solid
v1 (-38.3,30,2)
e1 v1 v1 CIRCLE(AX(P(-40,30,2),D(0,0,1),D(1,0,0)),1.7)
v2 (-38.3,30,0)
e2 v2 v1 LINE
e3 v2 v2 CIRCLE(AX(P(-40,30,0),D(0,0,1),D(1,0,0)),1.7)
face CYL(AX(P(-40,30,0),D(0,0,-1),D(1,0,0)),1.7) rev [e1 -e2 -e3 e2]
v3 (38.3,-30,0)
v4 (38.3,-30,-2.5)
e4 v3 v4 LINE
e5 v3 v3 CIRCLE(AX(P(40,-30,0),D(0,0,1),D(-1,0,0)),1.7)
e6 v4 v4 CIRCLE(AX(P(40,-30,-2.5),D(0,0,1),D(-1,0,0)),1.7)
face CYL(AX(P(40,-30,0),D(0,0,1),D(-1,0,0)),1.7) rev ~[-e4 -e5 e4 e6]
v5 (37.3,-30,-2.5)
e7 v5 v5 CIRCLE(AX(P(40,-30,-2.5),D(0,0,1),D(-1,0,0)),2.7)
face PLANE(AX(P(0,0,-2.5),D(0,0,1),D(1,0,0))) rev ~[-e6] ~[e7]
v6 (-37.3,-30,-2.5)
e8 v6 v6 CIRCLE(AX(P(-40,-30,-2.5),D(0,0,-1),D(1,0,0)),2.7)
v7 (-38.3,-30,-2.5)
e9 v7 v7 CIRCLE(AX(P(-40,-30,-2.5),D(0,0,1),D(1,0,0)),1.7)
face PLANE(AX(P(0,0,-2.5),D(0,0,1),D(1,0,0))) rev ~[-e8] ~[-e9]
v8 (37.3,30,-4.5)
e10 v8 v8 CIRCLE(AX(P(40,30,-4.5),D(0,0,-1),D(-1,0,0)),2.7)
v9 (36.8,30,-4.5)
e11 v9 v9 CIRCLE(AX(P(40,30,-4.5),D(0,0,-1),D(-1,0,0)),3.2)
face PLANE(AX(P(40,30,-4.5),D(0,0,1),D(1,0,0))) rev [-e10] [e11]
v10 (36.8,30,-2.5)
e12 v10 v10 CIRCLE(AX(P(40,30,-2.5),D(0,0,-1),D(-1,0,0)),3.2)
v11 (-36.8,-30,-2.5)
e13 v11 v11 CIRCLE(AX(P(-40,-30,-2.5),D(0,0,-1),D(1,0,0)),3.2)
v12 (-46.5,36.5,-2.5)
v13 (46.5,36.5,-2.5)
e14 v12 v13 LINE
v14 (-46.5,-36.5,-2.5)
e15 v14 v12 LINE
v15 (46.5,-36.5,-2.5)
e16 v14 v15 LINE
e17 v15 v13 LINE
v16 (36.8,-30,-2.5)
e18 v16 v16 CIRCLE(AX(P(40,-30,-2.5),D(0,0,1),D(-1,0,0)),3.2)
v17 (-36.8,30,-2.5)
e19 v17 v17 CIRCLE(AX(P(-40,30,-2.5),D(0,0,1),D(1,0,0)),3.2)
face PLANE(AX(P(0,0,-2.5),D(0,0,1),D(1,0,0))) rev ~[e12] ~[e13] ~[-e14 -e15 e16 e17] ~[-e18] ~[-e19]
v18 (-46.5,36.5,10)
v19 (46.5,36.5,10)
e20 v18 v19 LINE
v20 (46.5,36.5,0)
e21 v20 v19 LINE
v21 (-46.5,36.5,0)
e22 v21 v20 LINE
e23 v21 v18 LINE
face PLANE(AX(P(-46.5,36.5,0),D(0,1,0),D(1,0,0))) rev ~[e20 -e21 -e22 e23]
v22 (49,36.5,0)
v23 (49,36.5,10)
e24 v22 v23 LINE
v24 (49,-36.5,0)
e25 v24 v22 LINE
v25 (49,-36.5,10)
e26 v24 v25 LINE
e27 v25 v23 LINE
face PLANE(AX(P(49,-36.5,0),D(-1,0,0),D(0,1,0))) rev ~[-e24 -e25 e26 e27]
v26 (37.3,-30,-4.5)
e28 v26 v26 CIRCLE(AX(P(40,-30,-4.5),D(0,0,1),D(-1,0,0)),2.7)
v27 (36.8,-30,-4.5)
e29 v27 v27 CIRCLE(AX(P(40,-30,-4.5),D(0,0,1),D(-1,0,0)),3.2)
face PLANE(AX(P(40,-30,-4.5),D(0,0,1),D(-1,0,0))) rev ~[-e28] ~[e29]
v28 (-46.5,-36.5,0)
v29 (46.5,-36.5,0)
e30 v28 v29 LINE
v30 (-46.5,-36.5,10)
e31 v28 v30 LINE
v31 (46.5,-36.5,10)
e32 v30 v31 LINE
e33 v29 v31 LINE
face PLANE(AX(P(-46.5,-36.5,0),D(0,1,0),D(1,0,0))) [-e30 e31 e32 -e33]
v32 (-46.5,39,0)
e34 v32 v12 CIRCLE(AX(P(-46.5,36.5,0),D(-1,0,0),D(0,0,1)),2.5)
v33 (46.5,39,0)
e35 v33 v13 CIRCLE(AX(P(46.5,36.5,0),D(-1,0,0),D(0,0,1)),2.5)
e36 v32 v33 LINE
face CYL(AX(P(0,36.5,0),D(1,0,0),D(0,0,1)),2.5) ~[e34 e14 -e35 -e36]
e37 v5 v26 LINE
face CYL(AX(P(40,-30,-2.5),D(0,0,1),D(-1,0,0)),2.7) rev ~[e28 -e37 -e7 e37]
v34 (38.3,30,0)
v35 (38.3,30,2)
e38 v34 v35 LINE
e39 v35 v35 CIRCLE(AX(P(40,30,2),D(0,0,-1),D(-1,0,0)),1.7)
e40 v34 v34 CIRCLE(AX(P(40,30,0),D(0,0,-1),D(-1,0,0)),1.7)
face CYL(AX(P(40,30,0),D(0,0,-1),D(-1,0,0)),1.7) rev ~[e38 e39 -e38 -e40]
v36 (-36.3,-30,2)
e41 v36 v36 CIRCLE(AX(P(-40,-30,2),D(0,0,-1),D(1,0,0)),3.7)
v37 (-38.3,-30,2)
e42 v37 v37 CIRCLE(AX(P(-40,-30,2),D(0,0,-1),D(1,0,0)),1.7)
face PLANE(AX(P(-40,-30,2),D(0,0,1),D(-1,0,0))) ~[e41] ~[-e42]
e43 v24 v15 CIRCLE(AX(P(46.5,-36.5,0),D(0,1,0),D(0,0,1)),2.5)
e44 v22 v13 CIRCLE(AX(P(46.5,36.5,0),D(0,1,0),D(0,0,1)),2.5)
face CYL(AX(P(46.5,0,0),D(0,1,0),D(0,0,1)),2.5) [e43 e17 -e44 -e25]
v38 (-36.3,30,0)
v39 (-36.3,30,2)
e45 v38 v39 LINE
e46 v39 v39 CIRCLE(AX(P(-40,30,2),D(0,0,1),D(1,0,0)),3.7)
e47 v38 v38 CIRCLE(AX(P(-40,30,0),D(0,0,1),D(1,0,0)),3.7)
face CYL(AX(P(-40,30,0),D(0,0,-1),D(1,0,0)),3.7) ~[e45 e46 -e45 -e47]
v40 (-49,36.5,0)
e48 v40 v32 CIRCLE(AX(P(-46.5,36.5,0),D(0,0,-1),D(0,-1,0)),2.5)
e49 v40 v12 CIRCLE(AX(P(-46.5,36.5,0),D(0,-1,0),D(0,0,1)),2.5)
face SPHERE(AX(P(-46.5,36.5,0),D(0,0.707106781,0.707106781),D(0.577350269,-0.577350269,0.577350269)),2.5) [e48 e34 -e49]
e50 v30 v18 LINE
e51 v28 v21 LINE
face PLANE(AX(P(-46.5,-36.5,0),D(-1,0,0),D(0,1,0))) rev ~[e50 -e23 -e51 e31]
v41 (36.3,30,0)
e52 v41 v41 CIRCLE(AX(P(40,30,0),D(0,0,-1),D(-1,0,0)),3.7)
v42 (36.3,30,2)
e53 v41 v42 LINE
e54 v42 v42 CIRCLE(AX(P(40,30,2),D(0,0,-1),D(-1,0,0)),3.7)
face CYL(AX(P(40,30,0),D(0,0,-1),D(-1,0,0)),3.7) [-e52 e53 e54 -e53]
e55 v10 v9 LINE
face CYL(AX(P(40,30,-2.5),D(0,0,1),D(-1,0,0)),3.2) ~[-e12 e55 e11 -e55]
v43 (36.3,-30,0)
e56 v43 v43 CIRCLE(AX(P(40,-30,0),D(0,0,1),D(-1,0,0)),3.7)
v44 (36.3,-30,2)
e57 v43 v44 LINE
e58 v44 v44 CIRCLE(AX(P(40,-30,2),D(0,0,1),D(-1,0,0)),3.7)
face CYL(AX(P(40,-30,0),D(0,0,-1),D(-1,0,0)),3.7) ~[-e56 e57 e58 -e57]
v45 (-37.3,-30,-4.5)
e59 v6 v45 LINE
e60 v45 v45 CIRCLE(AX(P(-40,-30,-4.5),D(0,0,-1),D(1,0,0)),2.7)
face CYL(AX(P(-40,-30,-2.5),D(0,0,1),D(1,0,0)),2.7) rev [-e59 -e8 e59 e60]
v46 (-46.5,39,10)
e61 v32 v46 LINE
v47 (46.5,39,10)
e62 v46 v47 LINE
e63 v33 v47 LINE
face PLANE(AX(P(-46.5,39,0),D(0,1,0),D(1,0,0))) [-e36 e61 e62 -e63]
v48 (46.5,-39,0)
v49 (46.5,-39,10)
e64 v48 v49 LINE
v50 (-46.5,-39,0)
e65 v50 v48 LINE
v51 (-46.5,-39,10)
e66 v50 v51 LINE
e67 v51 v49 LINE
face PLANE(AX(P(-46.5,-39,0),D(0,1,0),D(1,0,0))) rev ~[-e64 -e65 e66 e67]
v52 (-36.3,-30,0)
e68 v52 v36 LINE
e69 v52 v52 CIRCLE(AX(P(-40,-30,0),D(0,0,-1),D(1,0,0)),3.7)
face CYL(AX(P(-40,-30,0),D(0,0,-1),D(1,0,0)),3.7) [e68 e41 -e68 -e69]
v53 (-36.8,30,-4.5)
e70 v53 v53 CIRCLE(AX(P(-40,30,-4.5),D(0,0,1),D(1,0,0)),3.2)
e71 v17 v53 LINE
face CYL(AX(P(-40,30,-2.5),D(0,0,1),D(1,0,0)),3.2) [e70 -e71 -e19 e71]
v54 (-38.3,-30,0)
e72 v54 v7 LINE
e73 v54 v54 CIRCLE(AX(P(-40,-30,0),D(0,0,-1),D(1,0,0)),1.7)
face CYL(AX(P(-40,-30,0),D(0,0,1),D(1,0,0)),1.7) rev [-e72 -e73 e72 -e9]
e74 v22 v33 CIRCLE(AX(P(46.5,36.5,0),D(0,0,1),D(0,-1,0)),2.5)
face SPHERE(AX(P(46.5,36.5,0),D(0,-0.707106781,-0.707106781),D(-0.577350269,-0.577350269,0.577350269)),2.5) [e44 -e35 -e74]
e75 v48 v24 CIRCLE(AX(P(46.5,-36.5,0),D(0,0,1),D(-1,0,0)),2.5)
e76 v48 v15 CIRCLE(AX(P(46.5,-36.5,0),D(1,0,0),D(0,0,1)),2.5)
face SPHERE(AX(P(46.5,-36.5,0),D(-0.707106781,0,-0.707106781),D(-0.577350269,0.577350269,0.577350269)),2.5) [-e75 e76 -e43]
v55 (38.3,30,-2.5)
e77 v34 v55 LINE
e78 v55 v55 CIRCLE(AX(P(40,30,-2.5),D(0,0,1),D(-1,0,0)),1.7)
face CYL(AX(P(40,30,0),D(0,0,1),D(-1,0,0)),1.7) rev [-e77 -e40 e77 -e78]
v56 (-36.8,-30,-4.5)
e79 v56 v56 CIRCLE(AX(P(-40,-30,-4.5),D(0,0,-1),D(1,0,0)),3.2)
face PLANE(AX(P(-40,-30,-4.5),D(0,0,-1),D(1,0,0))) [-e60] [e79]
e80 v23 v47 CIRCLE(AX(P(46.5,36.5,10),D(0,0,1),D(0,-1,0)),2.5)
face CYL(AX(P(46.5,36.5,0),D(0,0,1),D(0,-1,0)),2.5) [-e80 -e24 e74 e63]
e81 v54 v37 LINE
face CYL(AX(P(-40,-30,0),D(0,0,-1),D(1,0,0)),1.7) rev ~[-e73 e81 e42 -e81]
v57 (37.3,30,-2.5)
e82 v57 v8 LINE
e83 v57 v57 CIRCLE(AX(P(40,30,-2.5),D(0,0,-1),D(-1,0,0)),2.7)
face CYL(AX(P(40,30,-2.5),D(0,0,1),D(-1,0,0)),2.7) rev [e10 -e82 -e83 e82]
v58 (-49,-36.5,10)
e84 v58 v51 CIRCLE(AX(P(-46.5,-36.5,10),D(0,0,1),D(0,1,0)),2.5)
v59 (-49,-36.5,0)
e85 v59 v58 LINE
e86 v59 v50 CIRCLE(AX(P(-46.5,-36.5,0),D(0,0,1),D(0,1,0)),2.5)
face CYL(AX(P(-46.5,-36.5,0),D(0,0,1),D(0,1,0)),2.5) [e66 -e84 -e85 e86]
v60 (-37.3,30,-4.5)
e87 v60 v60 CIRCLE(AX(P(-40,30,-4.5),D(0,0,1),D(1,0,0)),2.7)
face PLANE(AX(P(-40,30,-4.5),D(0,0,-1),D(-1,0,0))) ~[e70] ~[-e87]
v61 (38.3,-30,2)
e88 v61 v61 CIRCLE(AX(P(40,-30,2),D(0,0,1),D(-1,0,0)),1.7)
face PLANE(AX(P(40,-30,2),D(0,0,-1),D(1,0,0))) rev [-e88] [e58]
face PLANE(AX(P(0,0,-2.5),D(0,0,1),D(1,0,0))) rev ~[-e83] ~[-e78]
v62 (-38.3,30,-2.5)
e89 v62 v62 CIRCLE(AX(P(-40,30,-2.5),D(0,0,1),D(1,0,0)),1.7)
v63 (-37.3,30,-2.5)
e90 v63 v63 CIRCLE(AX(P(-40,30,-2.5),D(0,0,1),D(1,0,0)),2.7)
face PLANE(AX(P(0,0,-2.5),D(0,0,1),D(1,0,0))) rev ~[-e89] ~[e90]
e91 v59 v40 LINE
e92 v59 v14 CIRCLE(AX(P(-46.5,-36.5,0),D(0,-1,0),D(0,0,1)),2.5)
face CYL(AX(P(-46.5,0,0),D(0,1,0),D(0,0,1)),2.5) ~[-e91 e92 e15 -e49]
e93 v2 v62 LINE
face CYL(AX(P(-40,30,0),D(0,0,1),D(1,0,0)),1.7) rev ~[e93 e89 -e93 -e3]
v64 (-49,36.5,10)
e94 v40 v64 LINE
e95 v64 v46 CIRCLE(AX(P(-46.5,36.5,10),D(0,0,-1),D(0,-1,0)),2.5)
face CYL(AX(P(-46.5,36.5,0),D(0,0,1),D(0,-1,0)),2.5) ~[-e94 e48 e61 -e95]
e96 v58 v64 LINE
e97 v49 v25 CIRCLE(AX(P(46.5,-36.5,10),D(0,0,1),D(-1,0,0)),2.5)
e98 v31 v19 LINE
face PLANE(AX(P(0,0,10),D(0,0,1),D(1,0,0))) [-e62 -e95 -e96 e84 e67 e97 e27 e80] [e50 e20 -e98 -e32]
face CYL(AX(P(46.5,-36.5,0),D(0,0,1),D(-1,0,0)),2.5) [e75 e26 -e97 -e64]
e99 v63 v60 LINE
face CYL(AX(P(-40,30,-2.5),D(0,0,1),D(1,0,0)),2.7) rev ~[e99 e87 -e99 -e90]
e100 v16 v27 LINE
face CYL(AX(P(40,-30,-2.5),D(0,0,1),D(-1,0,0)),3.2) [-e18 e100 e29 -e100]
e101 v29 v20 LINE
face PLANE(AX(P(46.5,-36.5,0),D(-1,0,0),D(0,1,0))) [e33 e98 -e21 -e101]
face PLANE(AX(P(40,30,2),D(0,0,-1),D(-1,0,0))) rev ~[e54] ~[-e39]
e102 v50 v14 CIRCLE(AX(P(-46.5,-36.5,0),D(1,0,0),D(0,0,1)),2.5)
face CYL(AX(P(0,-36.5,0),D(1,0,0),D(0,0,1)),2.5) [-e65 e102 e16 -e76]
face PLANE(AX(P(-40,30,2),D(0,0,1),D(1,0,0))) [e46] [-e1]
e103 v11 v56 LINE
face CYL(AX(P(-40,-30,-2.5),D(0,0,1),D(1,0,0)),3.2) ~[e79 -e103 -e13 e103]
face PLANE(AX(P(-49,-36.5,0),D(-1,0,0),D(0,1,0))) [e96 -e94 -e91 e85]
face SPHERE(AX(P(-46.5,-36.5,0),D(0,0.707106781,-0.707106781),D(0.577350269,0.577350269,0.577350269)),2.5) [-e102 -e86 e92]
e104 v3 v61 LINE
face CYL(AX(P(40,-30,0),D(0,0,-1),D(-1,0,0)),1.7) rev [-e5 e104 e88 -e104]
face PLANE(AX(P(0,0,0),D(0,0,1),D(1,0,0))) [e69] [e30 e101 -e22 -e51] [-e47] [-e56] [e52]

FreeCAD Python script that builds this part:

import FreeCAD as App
import Part
import Sketcher

V = App.Vector


def faces_at(feature, points):
    """Names of the faces that lie closest to the given points."""
    faces = feature.Shape.Faces
    near = lambda p: min(range(len(faces)), key=lambda i: faces[i].distToShape(Part.Vertex(*p))[0])
    return sorted({f"Face{near(p) + 1}" for p in points})


def add_polygon(sketch, points):
    """Adds a closed chain of lines whose ends are joined by coincident constraints."""
    first, n = sketch.GeometryCount, len(points)
    for a, b in zip(points, points[1:] + points[:1]):
        sketch.addGeometry(Part.LineSegment(App.Vector(*a, 0), App.Vector(*b, 0)), False)
    for i in range(n):
        sketch.addConstraint(Sketcher.Constraint("Coincident", first + i, 2, first + (i + 1) % n, 1))

doc = App.newDocument("Part")
body = doc.addObject("PartDesign::Body", "Body")

sketch1 = doc.addObject("Sketcher::SketchObject", "Sketch")
body.addObject(sketch1)
sketch1.AttachmentSupport = (doc.XY_Plane, [""])
sketch1.MapMode = "FlatFace"
add_polygon(sketch1, [(-46, 36), (-46, -36), (46, -36), (46, 36)])
sketch1.addConstraint([
    Sketcher.Constraint("Vertical", 0),
    Sketcher.Constraint("Horizontal", 1),
    Sketcher.Constraint("Vertical", 2),
    Sketcher.Constraint("Horizontal", 3),
    Sketcher.Constraint("Symmetric", 0, 2, 2, 2, -1, 1),
    Sketcher.Constraint("DistanceX", 1, 1, 1, 2, 93.0),
    Sketcher.Constraint("DistanceY", 0, 2, 0, 1, 73.0),
])
pad1 = doc.addObject("PartDesign::Pad", "Pad")
body.addObject(pad1)
pad1.Profile = sketch1
pad1.Length = 10
doc.recompute()

thickness = doc.addObject("PartDesign::Thickness", "Thickness")
body.addObject(thickness)
thickness.Base = (pad1, faces_at(pad1, [(0, 0, 10)]))
thickness.Value = 2.5
thickness.Reversed = False
thickness.Join = "Arc"

sketch2 = doc.addObject("Sketcher::SketchObject", "Sketch001")
body.addObject(sketch2)
sketch2.AttachmentSupport = (doc.XY_Plane, [""])
sketch2.MapMode = "FlatFace"
sketch2.addGeometry(Part.Circle(V(-40, 30, 0), V(0, 0, 1), 1.7), False)
sketch2.addConstraint([
    Sketcher.Constraint("Diameter", 0, 3.4),
    Sketcher.Constraint("DistanceX", 0, 3, -1, 1, 40.0),
    Sketcher.Constraint("DistanceY", -1, 1, 0, 3, 30.0),
])
pocket1 = doc.addObject("PartDesign::Pocket", "Pocket")
body.addObject(pocket1)
pocket1.Profile = sketch2
pocket1.Length = 25

sketch3 = doc.addObject("Sketcher::SketchObject", "Sketch002")
body.addObject(sketch3)
sketch3.AttachmentSupport = (doc.XY_Plane, [""])
sketch3.MapMode = "FlatFace"
sketch3.addGeometry([
    Part.Circle(V(-40, 30, 0), V(0, 0, 1), 3.7),
    Part.Circle(V(-40, 30, 0), V(0, 0, 1), 1.7),
], False)
sketch3.addConstraint([
    Sketcher.Constraint("Coincident", 1, 3, 0, 3),
    Sketcher.Constraint("Diameter", 0, 7.4),
    Sketcher.Constraint("Diameter", 1, 3.4),
    Sketcher.Constraint("DistanceX", 0, 3, -1, 1, 40.0),
    Sketcher.Constraint("DistanceY", -1, 1, 0, 3, 30.0),
])
pad2 = doc.addObject("PartDesign::Pad", "Pad001")
body.addObject(pad2)
pad2.Profile = sketch3
pad2.Length = 2

sketch4 = doc.addObject("Sketcher::SketchObject", "Sketch003")
body.addObject(sketch4)
sketch4.AttachmentSupport = (doc.XY_Plane, [""])
sketch4.MapMode = "FlatFace"
sketch4.addGeometry([
    Part.Circle(V(40, 30, 0), V(0, 0, 1), 3.7),
    Part.Circle(V(40, 30, 0), V(0, 0, 1), 1.7),
], False)
sketch4.addConstraint([
    Sketcher.Constraint("Coincident", 1, 3, 0, 3),
    Sketcher.Constraint("Diameter", 0, 7.4),
    Sketcher.Constraint("Diameter", 1, 3.4),
    Sketcher.Constraint("DistanceX", -1, 1, 0, 3, 40.0),
    Sketcher.Constraint("DistanceY", -1, 1, 0, 3, 30.0),
])
pad3 = doc.addObject("PartDesign::Pad", "Pad002")
body.addObject(pad3)
pad3.Profile = sketch4
pad3.Length = 2
doc.recompute()

mirrored = doc.addObject("PartDesign::Mirrored", "Mirrored")
body.addObject(mirrored)
mirrored.Originals = [pad2, pad3]
mirrored.MirrorPlane = (doc.XZ_Plane, [""])
body.Tip = mirrored

sketch5 = doc.addObject("Sketcher::SketchObject", "Sketch004")
body.addObject(sketch5)
sketch5.AttachmentSupport = (doc.XY_Plane, [""])
sketch5.MapMode = "FlatFace"
sketch5.addGeometry(Part.Circle(V(-40, 30, 0), V(0, 0, 1), 1.7), False)
sketch5.addConstraint([
    Sketcher.Constraint("Diameter", 0, 3.4),
    Sketcher.Constraint("DistanceX", 0, 3, -1, 1, 40.0),
    Sketcher.Constraint("DistanceY", -1, 1, 0, 3, 30.0),
])
pocket2 = doc.addObject("PartDesign::Pocket", "Pocket001")
body.addObject(pocket2)
pocket2.Profile = sketch5
pocket2.Type = "ThroughAll"

sketch6 = doc.addObject("Sketcher::SketchObject", "Sketch005")
body.addObject(sketch6)
sketch6.AttachmentSupport = (doc.XY_Plane, [""])
sketch6.MapMode = "FlatFace"
sketch6.addGeometry(Part.Circle(V(40, 30, 0), V(0, 0, 1), 1.7), False)
sketch6.addConstraint([
    Sketcher.Constraint("Diameter", 0, 3.4),
    Sketcher.Constraint("DistanceX", -1, 1, 0, 3, 40.0),
    Sketcher.Constraint("DistanceY", -1, 1, 0, 3, 30.0),
])
pocket3 = doc.addObject("PartDesign::Pocket", "Pocket002")
body.addObject(pocket3)
pocket3.Profile = sketch6
pocket3.Type = "ThroughAll"
doc.recompute()

mirrored2 = doc.addObject("PartDesign::Mirrored", "Mirrored001")
body.addObject(mirrored2)
mirrored2.Originals = [pocket2, pocket3]
mirrored2.MirrorPlane = (doc.XZ_Plane, [""])
body.Tip = mirrored2

sketch7 = doc.addObject("Sketcher::SketchObject", "Sketch006")
body.addObject(sketch7)
sketch7.AttachmentSupport = (doc.XY_Plane, [""])
sketch7.MapMode = "FlatFace"
sketch7.AttachmentOffset = App.Placement(V(0, 0, -2.5), App.Rotation())
sketch7.addGeometry([
    Part.Circle(V(-40, -30, 0), V(0, 0, 1), 3.2),
    Part.Circle(V(-40, -30, 0), V(0, 0, 1), 2.7),
], False)
sketch7.addConstraint([
    Sketcher.Constraint("Coincident", 1, 3, 0, 3),
    Sketcher.Constraint("Diameter", 0, 6.4),
    Sketcher.Constraint("Diameter", 1, 5.4),
    Sketcher.Constraint("DistanceX", 0, 3, -1, 1, 40.0),
    Sketcher.Constraint("DistanceY", 0, 3, -1, 1, 30.0),
])
pad4 = doc.addObject("PartDesign::Pad", "Pad003")
body.addObject(pad4)
pad4.Profile = sketch7
pad4.Length = 2
pad4.Reversed = True

sketch8 = doc.addObject("Sketcher::SketchObject", "Sketch007")
body.addObject(sketch8)
sketch8.AttachmentSupport = (doc.XY_Plane, [""])
sketch8.MapMode = "FlatFace"
sketch8.AttachmentOffset = App.Placement(V(0, 0, -2.5), App.Rotation())
sketch8.addGeometry([
    Part.Circle(V(40, -30, 0), V(0, 0, 1), 3.2),
    Part.Circle(V(40, -30, 0), V(0, 0, 1), 2.7),
], False)
sketch8.addConstraint([
    Sketcher.Constraint("Coincident", 1, 3, 0, 3),
    Sketcher.Constraint("Diameter", 0, 6.4),
    Sketcher.Constraint("Diameter", 1, 5.4),
    Sketcher.Constraint("DistanceX", -1, 1, 0, 3, 40.0),
    Sketcher.Constraint("DistanceY", 0, 3, -1, 1, 30.0),
])
pad5 = doc.addObject("PartDesign::Pad", "Pad004")
body.addObject(pad5)
pad5.Profile = sketch8
pad5.Length = 2
pad5.Reversed = True
doc.recompute()

mirrored3 = doc.addObject("PartDesign::Mirrored", "Mirrored002")
body.addObject(mirrored3)
mirrored3.Originals = [pad4, pad5]
mirrored3.MirrorPlane = (doc.XZ_Plane, [""])
body.Tip = mirrored3

doc.recompute()
